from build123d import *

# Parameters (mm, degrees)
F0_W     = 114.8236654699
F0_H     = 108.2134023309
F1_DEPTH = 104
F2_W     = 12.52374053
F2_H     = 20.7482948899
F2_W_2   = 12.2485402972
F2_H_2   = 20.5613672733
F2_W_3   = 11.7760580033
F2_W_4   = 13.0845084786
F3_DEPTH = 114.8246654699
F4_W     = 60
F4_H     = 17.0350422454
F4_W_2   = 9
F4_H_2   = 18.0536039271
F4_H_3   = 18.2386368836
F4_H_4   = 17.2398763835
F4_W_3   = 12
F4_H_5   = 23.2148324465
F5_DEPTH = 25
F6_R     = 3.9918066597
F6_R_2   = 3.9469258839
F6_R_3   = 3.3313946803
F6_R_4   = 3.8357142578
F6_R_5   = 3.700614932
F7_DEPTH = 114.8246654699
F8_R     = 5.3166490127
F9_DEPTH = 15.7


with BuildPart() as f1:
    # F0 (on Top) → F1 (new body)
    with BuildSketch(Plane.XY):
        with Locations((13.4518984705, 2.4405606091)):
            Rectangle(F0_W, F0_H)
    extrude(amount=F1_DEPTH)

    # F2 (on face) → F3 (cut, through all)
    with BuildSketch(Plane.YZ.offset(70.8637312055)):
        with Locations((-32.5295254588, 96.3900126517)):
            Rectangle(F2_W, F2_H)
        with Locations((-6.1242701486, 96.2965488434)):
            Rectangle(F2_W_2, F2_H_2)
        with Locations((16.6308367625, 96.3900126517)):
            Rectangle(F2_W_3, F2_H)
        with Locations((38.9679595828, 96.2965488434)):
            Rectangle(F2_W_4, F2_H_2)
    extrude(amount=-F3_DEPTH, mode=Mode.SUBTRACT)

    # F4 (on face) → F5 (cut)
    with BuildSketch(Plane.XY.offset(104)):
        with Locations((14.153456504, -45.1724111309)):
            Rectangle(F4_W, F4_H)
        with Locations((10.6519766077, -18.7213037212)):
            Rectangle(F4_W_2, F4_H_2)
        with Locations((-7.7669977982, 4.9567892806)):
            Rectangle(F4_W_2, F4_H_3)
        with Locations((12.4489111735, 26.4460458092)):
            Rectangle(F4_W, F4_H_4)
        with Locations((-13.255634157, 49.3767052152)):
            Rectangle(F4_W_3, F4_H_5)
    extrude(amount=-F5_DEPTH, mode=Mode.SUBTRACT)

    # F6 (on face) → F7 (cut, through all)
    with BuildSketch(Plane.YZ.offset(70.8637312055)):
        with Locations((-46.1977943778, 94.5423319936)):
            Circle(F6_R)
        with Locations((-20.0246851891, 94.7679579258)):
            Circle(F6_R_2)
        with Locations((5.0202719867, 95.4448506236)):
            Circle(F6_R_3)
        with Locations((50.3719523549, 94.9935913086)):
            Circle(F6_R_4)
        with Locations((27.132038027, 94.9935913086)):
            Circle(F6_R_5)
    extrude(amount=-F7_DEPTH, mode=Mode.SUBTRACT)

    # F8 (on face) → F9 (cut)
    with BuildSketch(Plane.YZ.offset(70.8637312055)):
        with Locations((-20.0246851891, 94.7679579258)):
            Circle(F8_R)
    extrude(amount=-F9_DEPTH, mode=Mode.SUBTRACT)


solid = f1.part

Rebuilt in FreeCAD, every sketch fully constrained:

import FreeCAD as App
import Part
import Sketcher


def add_polygon(sketch, points):
    """Adds a closed chain of lines whose ends are joined by coincident constraints."""
    first, n = sketch.GeometryCount, len(points)
    for a, b in zip(points, points[1:] + points[:1]):
        sketch.addGeometry(Part.LineSegment(App.Vector(*a, 0), App.Vector(*b, 0)), False)
    for i in range(n):
        sketch.addConstraint(Sketcher.Constraint("Coincident", first + i, 2, first + (i + 1) % n, 1))

doc = App.newDocument("Part")
body = doc.addObject("PartDesign::Body", "Body")

sketch1 = body.newObject("Sketcher::SketchObject", "Sketch")
sketch1.AttachmentSupport = (doc.getObject("XY_Plane"), [""])
sketch1.MapMode = "FlatFace"
add_polygon(sketch1, [(-44, 57), (-44, -52), (71, -52), (71, 57)])
sketch1.addConstraint([
    Sketcher.Constraint("Vertical", 0),
    Sketcher.Constraint("Horizontal", 1),
    Sketcher.Constraint("Vertical", 2),
    Sketcher.Constraint("Horizontal", 3),
    Sketcher.Constraint("DistanceX", 1, 1, 1, 2, 114.823665),
    Sketcher.Constraint("DistanceY", 0, 2, 0, 1, 108.213402),
    Sketcher.Constraint("DistanceY", 0, 2, -1, 1, 51.666141),
    Sketcher.Constraint("DistanceX", -1, 1, 1, 2, 70.863731),
])
pad1 = body.newObject("PartDesign::Pad", "Pad")
pad1.Profile = sketch1
pad1.Length = 104

sketch2 = body.newObject("Sketcher::SketchObject", "Sketch001")
sketch2.AttachmentSupport = (doc.getObject("YZ_Plane"), [""])
sketch2.MapMode = "FlatFace"
sketch2.AttachmentOffset = App.Placement(App.Vector(0, 0, 70.863731), App.Rotation())
add_polygon(sketch2, [(-39, 107), (-39, 86), (-26, 86), (-26, 107)])
add_polygon(sketch2, [(-12, 107), (-12, 86), (0, 86), (0, 107)])
add_polygon(sketch2, [(11, 107), (11, 86), (23, 86), (23, 107)])
add_polygon(sketch2, [(32, 107), (32, 86), (46, 86), (46, 107)])
sketch2.addConstraint([
    Sketcher.Constraint("Vertical", 0),
    Sketcher.Constraint("Horizontal", 1),
    Sketcher.Constraint("Vertical", 2),
    Sketcher.Constraint("Horizontal", 3),
    Sketcher.Constraint("Vertical", 4),
    Sketcher.Constraint("Horizontal", 5),
    Sketcher.Constraint("Vertical", 6),
    Sketcher.Constraint("Horizontal", 7),
    Sketcher.Constraint("Vertical", 8),
    Sketcher.Constraint("Horizontal", 9),
    Sketcher.Constraint("Vertical", 10),
    Sketcher.Constraint("Horizontal", 11),
    Sketcher.Constraint("Vertical", 12),
    Sketcher.Constraint("Horizontal", 13),
    Sketcher.Constraint("Vertical", 14),
    Sketcher.Constraint("Horizontal", 15),
    Sketcher.Constraint("PointOnObject", 5, 2, -2),
    Sketcher.Constraint("Horizontal", 1, 2, 4, 2),
    Sketcher.Constraint("Horizontal", 5, 2, 8, 2),
    Sketcher.Constraint("Horizontal", 3, 2, 10, 2),
    Sketcher.Constraint("Horizontal", 9, 2, 12, 2),
    Sketcher.Constraint("Horizontal", 7, 2, 14, 2),
    Sketcher.Constraint("DistanceX", 1, 1, 1, 2, 12.523741),
    Sketcher.Constraint("DistanceX", 5, 1, 5, 2, 12.24854),
    Sketcher.Constraint("DistanceX", 9, 1, 9, 2, 11.776058),
    Sketcher.Constraint("DistanceX", 13, 1, 13, 2, 13.084508),
    Sketcher.Constraint("DistanceY", 0, 2, 0, 1, 20.748295),
    Sketcher.Constraint("DistanceY", 4, 2, 4, 1, 20.561367),
    Sketcher.Constraint("DistanceY", -1, 1, 2, 2, 106.76416),
    Sketcher.Constraint("DistanceX", 4, 2, 8, 2, 22.991348),
    Sketcher.Constraint("DistanceX", 9, 2, 12, 2, 9.90684),
    Sketcher.Constraint("DistanceX", 0, 2, -1, 1, 38.791396),
])
pocket1 = body.newObject("PartDesign::Pocket", "Pocket")
pocket1.Profile = sketch2
pocket1.Type = "ThroughAll"

sketch3 = body.newObject("Sketcher::SketchObject", "Sketch002")
sketch3.AttachmentSupport = (doc.getObject("XY_Plane"), [""])
sketch3.MapMode = "FlatFace"
sketch3.AttachmentOffset = App.Placement(App.Vector(0, 0, 104), App.Rotation())
add_polygon(sketch3, [(-16, -37), (-16, -54), (44, -54), (44, -37)])
add_polygon(sketch3, [(6, -10), (6, -28), (15, -28), (15, -10)])
add_polygon(sketch3, [(-12, 14), (-12, -4), (-3, -4), (-3, 14)])
add_polygon(sketch3, [(-18, 35), (-18, 18), (42, 18), (42, 35)])
add_polygon(sketch3, [(-19, 61), (-19, 38), (-7, 38), (-7, 61)])
sketch3.addConstraint([
    Sketcher.Constraint("Vertical", 0),
    Sketcher.Constraint("Horizontal", 1),
    Sketcher.Constraint("Vertical", 2),
    Sketcher.Constraint("Horizontal", 3),
    Sketcher.Constraint("Vertical", 4),
    Sketcher.Constraint("Horizontal", 5),
    Sketcher.Constraint("Vertical", 6),
    Sketcher.Constraint("Horizontal", 7),
    Sketcher.Constraint("Vertical", 8),
    Sketcher.Constraint("Horizontal", 9),
    Sketcher.Constraint("Vertical", 10),
    Sketcher.Constraint("Horizontal", 11),
    Sketcher.Constraint("Vertical", 12),
    Sketcher.Constraint("Horizontal", 13),
    Sketcher.Constraint("Vertical", 14),
    Sketcher.Constraint("Horizontal", 15),
    Sketcher.Constraint("Vertical", 16),
    Sketcher.Constraint("Horizontal", 17),
    Sketcher.Constraint("Vertical", 18),
    Sketcher.Constraint("Horizontal", 19),
    Sketcher.Constraint("Equal", 7, 9),
    Sketcher.Constraint("Equal", 3, 13),
    Sketcher.Constraint("DistanceX", 1, 1, 1, 2, 60.0),
    Sketcher.Constraint("DistanceX", 5, 1, 5, 2, 9.0),
    Sketcher.Constraint("DistanceX", 17, 1, 17, 2, 12.0),
    Sketcher.Constraint("DistanceY", 11, 2, 12, 2, 3.75),
    Sketcher.Constraint("DistanceY", 6, 2, -1, 1, 9.694502),
    Sketcher.Constraint("DistanceY", 0, 2, 0, 1, 17.035042),
    Sketcher.Constraint("DistanceY", 4, 2, 4, 1, 18.053604),
    Sketcher.Constraint("DistanceY", 8, 2, 8, 1, 18.238637),
    Sketcher.Constraint("DistanceY", 12, 2, 12, 1, 17.239876),
    Sketcher.Constraint("DistanceY", 16, 2, 16, 1, 23.214832),
    Sketcher.Constraint("DistanceY", 2, 2, -1, 1, 36.65489),
    Sketcher.Constraint("DistanceY", 8, 2, -1, 1, 4.162529),
    Sketcher.Constraint("DistanceX", 12, 2, -1, 1, 17.551089),
    Sketcher.Constraint("DistanceY", -1, 1, 16, 2, 37.769289),
    Sketcher.Constraint("DistanceX", 3, 2, 4, 2, 21.99852),
    Sketcher.Constraint("DistanceX", 12, 2, 11, 2, 5.284091),
    Sketcher.Constraint("DistanceX", 0, 2, -1, 1, 15.846543),
    Sketcher.Constraint("DistanceX", 16, 2, -1, 1, 19.255634),
])
pocket2 = body.newObject("PartDesign::Pocket", "Pocket001")
pocket2.Profile = sketch3
pocket2.Length = 25

sketch4 = body.newObject("Sketcher::SketchObject", "Sketch003")
sketch4.AttachmentSupport = (doc.getObject("YZ_Plane"), [""])
sketch4.MapMode = "FlatFace"
sketch4.AttachmentOffset = App.Placement(App.Vector(0, 0, 70.863731), App.Rotation())
sketch4.addGeometry([
    Part.Circle(App.Vector(-46.2, 94.5, 0), App.Vector(0, 0, 1), 4),
    Part.Circle(App.Vector(-20, 94.8, 0), App.Vector(0, 0, 1), 3.9),
    Part.Circle(App.Vector(5, 95.4, 0), App.Vector(0, 0, 1), 3.3),
    Part.Circle(App.Vector(50.4, 95, 0), App.Vector(0, 0, 1), 3.8),
    Part.Circle(App.Vector(27.1, 95, 0), App.Vector(0, 0, 1), 3.7),
], False)
sketch4.addConstraint([
    Sketcher.Constraint("Horizontal", 3, 3, 4, 3),
    Sketcher.Constraint("Diameter", 1, 7.893852),
    Sketcher.Constraint("Diameter", 2, 6.662789),
    Sketcher.Constraint("Diameter", 3, 7.671429),
    Sketcher.Constraint("Diameter", 4, 7.40123),
    Sketcher.Constraint("Diameter", 0, 7.983613),
    Sketcher.Constraint("DistanceY", -1, 1, 0, 3, 94.542332),
    Sketcher.Constraint("DistanceX", -1, 1, 2, 3, 5.020272),
    Sketcher.Constraint("DistanceY", -1, 1, 2, 3, 95.444851),
    Sketcher.Constraint("DistanceY", -1, 1, 3, 3, 94.993591),
    Sketcher.Constraint("DistanceX", -1, 1, 4, 3, 27.132038),
    Sketcher.Constraint("DistanceX", 0, 3, 1, 3, 26.173109),
    Sketcher.Constraint("DistanceX", 2, 3, 3, 3, 45.35168),
    Sketcher.Constraint("DistanceX", 0, 3, -1, 1, 46.197794),
    Sketcher.Constraint("DistanceY", -1, 1, 1, 3, 94.767958),
])
pocket3 = body.newObject("PartDesign::Pocket", "Pocket002")
pocket3.Profile = sketch4
pocket3.Type = "ThroughAll"

sketch5 = body.newObject("Sketcher::SketchObject", "Sketch004")
sketch5.AttachmentSupport = (doc.getObject("YZ_Plane"), [""])
sketch5.MapMode = "FlatFace"
sketch5.AttachmentOffset = App.Placement(App.Vector(0, 0, 70.863731), App.Rotation())
sketch5.addGeometry(Part.Circle(App.Vector(-20, 95, 0), App.Vector(0, 0, 1), 5), False)
sketch5.addConstraint([
    Sketcher.Constraint("Diameter", 0, 10.633298),
    Sketcher.Constraint("DistanceX", 0, 3, -1, 1, 20.024685),
    Sketcher.Constraint("DistanceY", -1, 1, 0, 3, 94.767958),
])
pocket4 = body.newObject("PartDesign::Pocket", "Pocket003")
pocket4.Profile = sketch5
pocket4.Length = 15.7

doc.recompute()
